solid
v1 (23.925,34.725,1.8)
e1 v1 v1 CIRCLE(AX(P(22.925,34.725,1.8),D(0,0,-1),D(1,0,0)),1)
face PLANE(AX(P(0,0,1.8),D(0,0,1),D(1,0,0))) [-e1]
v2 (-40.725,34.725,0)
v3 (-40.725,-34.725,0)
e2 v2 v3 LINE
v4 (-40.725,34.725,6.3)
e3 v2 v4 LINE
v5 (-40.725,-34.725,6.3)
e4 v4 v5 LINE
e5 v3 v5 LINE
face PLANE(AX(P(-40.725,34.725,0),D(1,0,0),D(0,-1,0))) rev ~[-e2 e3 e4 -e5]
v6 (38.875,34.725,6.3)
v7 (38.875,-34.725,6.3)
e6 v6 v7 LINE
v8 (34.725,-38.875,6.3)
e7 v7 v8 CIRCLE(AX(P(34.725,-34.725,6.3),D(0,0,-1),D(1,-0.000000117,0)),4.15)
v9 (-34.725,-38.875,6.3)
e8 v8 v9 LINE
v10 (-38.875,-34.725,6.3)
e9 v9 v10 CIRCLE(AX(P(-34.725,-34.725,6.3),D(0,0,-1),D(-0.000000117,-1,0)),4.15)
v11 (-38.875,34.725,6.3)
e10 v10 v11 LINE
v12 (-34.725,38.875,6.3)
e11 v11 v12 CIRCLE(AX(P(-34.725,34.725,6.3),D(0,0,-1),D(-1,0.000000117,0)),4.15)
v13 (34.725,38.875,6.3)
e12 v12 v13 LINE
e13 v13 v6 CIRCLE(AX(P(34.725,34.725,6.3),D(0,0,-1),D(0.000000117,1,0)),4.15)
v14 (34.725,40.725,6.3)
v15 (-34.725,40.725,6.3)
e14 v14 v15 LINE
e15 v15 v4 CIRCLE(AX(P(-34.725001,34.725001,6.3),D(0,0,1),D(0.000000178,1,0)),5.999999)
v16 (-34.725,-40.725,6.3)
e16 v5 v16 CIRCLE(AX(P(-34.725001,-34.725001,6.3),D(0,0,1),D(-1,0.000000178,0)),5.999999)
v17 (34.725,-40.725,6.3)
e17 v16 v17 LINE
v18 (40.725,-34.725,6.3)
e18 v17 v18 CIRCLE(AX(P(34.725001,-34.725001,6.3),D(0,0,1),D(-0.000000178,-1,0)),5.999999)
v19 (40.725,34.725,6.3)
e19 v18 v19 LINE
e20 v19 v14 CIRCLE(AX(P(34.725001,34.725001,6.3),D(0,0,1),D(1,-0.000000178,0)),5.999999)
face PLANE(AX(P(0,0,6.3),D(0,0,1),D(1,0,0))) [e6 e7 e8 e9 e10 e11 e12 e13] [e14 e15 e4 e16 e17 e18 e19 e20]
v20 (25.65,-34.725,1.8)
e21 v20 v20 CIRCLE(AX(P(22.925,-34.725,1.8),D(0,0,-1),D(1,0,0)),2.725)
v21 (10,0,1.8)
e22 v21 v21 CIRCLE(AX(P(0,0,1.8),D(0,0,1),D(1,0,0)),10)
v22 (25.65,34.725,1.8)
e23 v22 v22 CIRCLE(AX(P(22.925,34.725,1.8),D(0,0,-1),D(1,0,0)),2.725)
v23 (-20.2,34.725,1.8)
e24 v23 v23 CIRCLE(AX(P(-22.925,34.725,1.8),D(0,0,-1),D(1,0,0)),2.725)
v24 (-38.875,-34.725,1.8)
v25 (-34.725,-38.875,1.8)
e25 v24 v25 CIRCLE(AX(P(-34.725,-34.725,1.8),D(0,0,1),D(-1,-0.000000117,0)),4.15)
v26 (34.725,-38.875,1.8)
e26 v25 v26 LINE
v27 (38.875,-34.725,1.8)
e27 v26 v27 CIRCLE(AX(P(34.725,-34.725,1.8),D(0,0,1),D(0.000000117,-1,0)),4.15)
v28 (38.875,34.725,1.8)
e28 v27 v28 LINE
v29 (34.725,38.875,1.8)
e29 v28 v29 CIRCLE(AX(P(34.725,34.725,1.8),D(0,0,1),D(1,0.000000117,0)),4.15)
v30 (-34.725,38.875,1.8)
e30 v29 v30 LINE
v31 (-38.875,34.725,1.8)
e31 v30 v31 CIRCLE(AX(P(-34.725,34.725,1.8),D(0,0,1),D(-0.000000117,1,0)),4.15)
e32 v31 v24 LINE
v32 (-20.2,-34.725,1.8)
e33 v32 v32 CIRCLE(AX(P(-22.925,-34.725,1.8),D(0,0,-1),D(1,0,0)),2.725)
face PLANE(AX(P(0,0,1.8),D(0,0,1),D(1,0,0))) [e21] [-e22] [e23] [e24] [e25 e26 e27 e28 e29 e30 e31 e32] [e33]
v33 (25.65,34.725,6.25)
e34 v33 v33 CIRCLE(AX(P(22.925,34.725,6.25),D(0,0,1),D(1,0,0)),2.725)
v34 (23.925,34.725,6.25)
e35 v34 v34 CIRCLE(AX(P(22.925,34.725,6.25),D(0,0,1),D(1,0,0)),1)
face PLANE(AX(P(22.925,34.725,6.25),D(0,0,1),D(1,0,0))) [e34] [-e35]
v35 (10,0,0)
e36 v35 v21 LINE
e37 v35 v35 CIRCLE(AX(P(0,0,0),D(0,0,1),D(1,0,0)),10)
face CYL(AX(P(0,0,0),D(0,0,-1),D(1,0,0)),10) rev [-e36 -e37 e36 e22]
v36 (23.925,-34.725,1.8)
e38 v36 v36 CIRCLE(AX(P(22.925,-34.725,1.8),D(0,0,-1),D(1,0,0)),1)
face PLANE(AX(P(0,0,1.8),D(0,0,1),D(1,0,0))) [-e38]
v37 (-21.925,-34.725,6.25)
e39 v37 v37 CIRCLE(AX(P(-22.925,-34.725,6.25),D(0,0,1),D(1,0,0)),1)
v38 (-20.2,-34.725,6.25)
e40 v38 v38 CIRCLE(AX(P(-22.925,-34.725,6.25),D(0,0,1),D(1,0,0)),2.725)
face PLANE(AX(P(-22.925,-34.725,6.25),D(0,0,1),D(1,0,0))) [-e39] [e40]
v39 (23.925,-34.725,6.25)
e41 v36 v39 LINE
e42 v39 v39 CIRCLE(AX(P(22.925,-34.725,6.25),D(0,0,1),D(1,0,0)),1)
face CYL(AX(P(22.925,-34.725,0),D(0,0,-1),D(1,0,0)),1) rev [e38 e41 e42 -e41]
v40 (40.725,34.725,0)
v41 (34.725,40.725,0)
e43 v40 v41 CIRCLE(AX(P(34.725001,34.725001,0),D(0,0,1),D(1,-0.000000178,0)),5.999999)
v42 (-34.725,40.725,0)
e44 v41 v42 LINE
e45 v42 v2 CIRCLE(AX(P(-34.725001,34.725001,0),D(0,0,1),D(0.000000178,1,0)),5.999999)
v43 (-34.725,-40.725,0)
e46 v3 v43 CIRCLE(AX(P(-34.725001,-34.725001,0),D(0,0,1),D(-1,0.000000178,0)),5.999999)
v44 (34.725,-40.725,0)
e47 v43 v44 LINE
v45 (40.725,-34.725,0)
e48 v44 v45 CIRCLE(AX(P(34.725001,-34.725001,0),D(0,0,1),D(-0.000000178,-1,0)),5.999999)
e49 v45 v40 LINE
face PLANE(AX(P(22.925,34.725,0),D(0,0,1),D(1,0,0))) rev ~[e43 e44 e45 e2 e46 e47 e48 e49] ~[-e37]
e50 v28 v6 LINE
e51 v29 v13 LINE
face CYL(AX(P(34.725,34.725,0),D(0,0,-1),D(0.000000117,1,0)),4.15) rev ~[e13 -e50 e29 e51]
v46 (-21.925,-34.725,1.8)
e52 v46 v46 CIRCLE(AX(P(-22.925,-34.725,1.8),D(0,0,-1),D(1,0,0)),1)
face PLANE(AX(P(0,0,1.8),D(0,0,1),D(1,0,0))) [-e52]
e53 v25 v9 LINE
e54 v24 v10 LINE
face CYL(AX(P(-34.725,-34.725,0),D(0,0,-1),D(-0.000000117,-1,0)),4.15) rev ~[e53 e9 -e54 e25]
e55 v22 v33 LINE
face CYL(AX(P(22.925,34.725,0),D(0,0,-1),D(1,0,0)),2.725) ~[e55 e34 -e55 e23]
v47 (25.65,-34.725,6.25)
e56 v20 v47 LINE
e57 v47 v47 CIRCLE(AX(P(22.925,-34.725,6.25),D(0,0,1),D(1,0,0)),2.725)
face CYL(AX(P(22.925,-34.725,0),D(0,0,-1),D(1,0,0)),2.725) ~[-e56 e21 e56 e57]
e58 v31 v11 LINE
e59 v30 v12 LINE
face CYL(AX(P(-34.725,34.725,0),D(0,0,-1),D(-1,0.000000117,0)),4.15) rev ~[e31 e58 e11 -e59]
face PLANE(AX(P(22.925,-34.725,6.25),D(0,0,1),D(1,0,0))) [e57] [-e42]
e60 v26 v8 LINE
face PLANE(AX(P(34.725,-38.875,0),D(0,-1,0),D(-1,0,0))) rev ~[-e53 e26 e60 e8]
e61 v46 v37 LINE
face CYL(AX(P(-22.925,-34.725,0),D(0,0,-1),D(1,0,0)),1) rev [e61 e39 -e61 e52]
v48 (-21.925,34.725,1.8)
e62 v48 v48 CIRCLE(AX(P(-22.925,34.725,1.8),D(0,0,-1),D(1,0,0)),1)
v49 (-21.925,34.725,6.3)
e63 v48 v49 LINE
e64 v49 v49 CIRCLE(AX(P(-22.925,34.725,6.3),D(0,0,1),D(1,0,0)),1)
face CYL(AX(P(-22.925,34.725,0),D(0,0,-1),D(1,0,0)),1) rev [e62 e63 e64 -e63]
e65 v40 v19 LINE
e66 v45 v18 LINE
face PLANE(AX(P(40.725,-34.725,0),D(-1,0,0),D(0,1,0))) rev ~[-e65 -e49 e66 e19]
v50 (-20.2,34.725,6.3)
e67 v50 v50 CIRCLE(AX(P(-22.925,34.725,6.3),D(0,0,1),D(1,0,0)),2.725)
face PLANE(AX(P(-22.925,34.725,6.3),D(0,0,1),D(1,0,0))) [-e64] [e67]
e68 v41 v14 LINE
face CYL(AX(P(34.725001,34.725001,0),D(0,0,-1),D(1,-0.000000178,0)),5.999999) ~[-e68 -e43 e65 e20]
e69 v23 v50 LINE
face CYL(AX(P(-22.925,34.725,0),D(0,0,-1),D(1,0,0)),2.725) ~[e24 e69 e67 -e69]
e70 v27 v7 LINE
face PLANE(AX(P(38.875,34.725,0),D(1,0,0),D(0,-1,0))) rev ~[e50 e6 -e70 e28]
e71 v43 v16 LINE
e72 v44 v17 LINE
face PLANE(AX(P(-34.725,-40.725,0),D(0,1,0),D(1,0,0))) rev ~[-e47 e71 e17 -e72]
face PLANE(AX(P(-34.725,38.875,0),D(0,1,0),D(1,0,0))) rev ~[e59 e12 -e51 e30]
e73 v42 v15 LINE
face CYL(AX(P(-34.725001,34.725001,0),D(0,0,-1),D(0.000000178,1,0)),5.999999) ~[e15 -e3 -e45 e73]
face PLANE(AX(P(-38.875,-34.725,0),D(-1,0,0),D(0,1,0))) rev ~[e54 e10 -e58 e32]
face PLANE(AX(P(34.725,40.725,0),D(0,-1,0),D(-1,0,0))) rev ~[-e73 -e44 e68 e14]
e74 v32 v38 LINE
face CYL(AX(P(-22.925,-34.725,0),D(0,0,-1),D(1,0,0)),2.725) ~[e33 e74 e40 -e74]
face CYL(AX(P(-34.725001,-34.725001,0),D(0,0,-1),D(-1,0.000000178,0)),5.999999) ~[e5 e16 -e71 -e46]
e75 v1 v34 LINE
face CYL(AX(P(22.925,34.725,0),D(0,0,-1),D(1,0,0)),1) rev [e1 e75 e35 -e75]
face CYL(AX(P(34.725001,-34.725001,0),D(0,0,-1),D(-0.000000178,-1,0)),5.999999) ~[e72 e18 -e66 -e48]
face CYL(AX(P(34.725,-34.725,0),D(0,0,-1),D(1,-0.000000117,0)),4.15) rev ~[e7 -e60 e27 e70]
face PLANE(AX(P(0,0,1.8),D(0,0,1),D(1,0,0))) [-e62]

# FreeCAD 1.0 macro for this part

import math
import FreeCAD as App
import Part
import Sketcher

V = App.Vector

doc = App.newDocument("Part")
body = doc.addObject("PartDesign::Body", "Body")

sketch1 = body.newObject("Sketcher::SketchObject", "Sketch")
sketch1.AttachmentSupport = (doc.getObject("XY_Plane"), [""])
sketch1.MapMode = "FlatFace"
sketch1.addGeometry([
    Part.LineSegment(V(38.9, -34.7, 0), V(38.9, 34.7, 0)),
    Part.ArcOfCircle(Part.Circle(V(34.7, 34.7, 0), V(0, 0, 1), 4.2), math.radians(0), math.radians(90)),
    Part.LineSegment(V(34.7, 38.9, 0), V(-34.7, 38.9, 0)),
    Part.ArcOfCircle(Part.Circle(V(-34.7, 34.7, 0), V(0, 0, 1), 4.2), math.radians(90), math.radians(180)),
    Part.LineSegment(V(-38.9, 34.7, 0), V(-38.9, -34.7, 0)),
    Part.ArcOfCircle(Part.Circle(V(-34.7, -34.7, 0), V(0, 0, 1), 4.2), math.radians(-180), math.radians(-90)),
    Part.LineSegment(V(-34.7, -38.9, 0), V(34.7, -38.9, 0)),
    Part.ArcOfCircle(Part.Circle(V(34.7, -34.7, 0), V(0, 0, 1), 4.2), math.radians(-90), math.radians(0)),
    Part.Circle(V(0, 0, 0), V(0, 0, 1), 10),
], False)
sketch1.addConstraint([
    Sketcher.Constraint("Tangent", 0, 2, 1, 1),
    Sketcher.Constraint("Tangent", 1, 2, 2, 1),
    Sketcher.Constraint("Tangent", 2, 2, 3, 1),
    Sketcher.Constraint("Tangent", 3, 2, 4, 1),
    Sketcher.Constraint("Tangent", 4, 2, 5, 1),
    Sketcher.Constraint("Tangent", 5, 2, 6, 1),
    Sketcher.Constraint("Tangent", 6, 2, 7, 1),
    Sketcher.Constraint("Tangent", 7, 2, 0, 1),
    Sketcher.Constraint("Vertical", 0),
    Sketcher.Constraint("Horizontal", 2),
    Sketcher.Constraint("Vertical", 4),
    Sketcher.Constraint("Horizontal", 6),
    Sketcher.Constraint("Coincident", 8, 3, -1, 1),
    Sketcher.Constraint("Equal", 1, 3),
    Sketcher.Constraint("Equal", 3, 5),
    Sketcher.Constraint("Equal", 5, 7),
    Sketcher.Constraint("Symmetric", 1, 3, 5, 3, -1, 1),
    Sketcher.Constraint("Equal", 6, 0),
    Sketcher.Constraint("Diameter", 8, 20.0),
    Sketcher.Constraint("Radius", 1, 4.15),
    Sketcher.Constraint("DistanceX", 2, 2, 2, 1, 69.45),
])
pad1 = body.newObject("PartDesign::Pad", "Pad")
pad1.Profile = sketch1
pad1.Length = 1.8

sketch2 = body.newObject("Sketcher::SketchObject", "Sketch001")
sketch2.AttachmentSupport = (doc.getObject("XY_Plane"), [""])
sketch2.MapMode = "FlatFace"
sketch2.addGeometry([
    Part.LineSegment(V(-34.7, -40.7, 0), V(34.7, -40.7, 0)),
    Part.ArcOfCircle(Part.Circle(V(34.7, -34.7, 0), V(0, 0, 1), 6), math.radians(-90), math.radians(0)),
    Part.LineSegment(V(40.7, -34.7, 0), V(40.7, 34.7, 0)),
    Part.ArcOfCircle(Part.Circle(V(34.7, 34.7, 0), V(0, 0, 1), 6), math.radians(0), math.radians(90)),
    Part.LineSegment(V(34.7, 40.7, 0), V(-34.7, 40.7, 0)),
    Part.ArcOfCircle(Part.Circle(V(-34.7, 34.7, 0), V(0, 0, 1), 6), math.radians(90), math.radians(180)),
    Part.LineSegment(V(-40.7, 34.7, 0), V(-40.7, -34.7, 0)),
    Part.ArcOfCircle(Part.Circle(V(-34.7, -34.7, 0), V(0, 0, 1), 6), math.radians(180), math.radians(270)),
    Part.LineSegment(V(-34.7, 38.9, 0), V(34.7, 38.9, 0)),
    Part.ArcOfCircle(Part.Circle(V(34.7, 34.7, 0), V(0, 0, 1), 4.2), math.radians(0), math.radians(90)),
    Part.LineSegment(V(38.9, 34.7, 0), V(38.9, -34.7, 0)),
    Part.ArcOfCircle(Part.Circle(V(34.7, -34.7, 0), V(0, 0, 1), 4.2), math.radians(-90), math.radians(0)),
    Part.LineSegment(V(34.7, -38.9, 0), V(-34.7, -38.9, 0)),
    Part.ArcOfCircle(Part.Circle(V(-34.7, -34.7, 0), V(0, 0, 1), 4.2), math.radians(-180), math.radians(-90)),
    Part.LineSegment(V(-38.9, -34.7, 0), V(-38.9, 34.7, 0)),
    Part.ArcOfCircle(Part.Circle(V(-34.7, 34.7, 0), V(0, 0, 1), 4.2), math.radians(90), math.radians(180)),
], False)
sketch2.addConstraint([
    Sketcher.Constraint("Tangent", 0, 2, 1, 1),
    Sketcher.Constraint("Tangent", 1, 2, 2, 1),
    Sketcher.Constraint("Tangent", 2, 2, 3, 1),
    Sketcher.Constraint("Tangent", 3, 2, 4, 1),
    Sketcher.Constraint("Tangent", 4, 2, 5, 1),
    Sketcher.Constraint("Tangent", 5, 2, 6, 1),
    Sketcher.Constraint("Tangent", 6, 2, 7, 1),
    Sketcher.Constraint("Tangent", 7, 2, 0, 1),
    Sketcher.Constraint("Tangent", 8, 2, 9, 2),
    Sketcher.Constraint("Tangent", 9, 1, 10, 1),
    Sketcher.Constraint("Tangent", 10, 2, 11, 2),
    Sketcher.Constraint("Tangent", 11, 1, 12, 1),
    Sketcher.Constraint("Tangent", 12, 2, 13, 2),
    Sketcher.Constraint("Tangent", 13, 1, 14, 1),
    Sketcher.Constraint("Tangent", 14, 2, 15, 2),
    Sketcher.Constraint("Tangent", 15, 1, 8, 1),
    Sketcher.Constraint("Horizontal", 0),
    Sketcher.Constraint("Vertical", 2),
    Sketcher.Constraint("Horizontal", 4),
    Sketcher.Constraint("Vertical", 6),
    Sketcher.Constraint("Horizontal", 8),
    Sketcher.Constraint("Vertical", 10),
    Sketcher.Constraint("Horizontal", 12),
    Sketcher.Constraint("Vertical", 14),
    Sketcher.Constraint("Coincident", 9, 3, 3, 3),
    Sketcher.Constraint("Coincident", 11, 3, 1, 3),
    Sketcher.Constraint("Coincident", 13, 3, 7, 3),
    Sketcher.Constraint("Equal", 1, 3),
    Sketcher.Constraint("Equal", 3, 5),
    Sketcher.Constraint("Equal", 5, 7),
    Sketcher.Constraint("Equal", 13, 15),
    Sketcher.Constraint("Symmetric", 1, 3, 5, 3, -1, 1),
    Sketcher.Constraint("Equal", 12, 2),
    Sketcher.Constraint("Radius", 1, 5.999999),
    Sketcher.Constraint("Radius", 9, 4.15),
    Sketcher.Constraint("DistanceX", 0, 1, 0, 2, 69.45),
])
pad2 = body.newObject("PartDesign::Pad", "Pad001")
pad2.Profile = sketch2
pad2.Length = 6.3

sketch3 = body.newObject("Sketcher::SketchObject", "Sketch002")
sketch3.AttachmentSupport = (doc.getObject("XY_Plane"), [""])
sketch3.MapMode = "FlatFace"
sketch3.addGeometry([
    Part.Circle(V(-22.9, 34.7, 0), V(0, 0, 1), 2.7),
    Part.Circle(V(-22.9, 34.7, 0), V(0, 0, 1), 1),
], False)
sketch3.addConstraint([
    Sketcher.Constraint("Coincident", 1, 3, 0, 3),
    Sketcher.Constraint("Diameter", 1, 2.0),
    Sketcher.Constraint("Diameter", 0, 5.45),
    Sketcher.Constraint("DistanceX", 0, 3, -1, 1, 22.925),
    Sketcher.Constraint("DistanceY", -1, 1, 0, 3, 34.725),
])
pad3 = body.newObject("PartDesign::Pad", "Pad002")
pad3.Profile = sketch3
pad3.Length = 6.3

sketch4 = body.newObject("Sketcher::SketchObject", "Sketch003")
sketch4.AttachmentSupport = (doc.getObject("XY_Plane"), [""])
sketch4.MapMode = "FlatFace"
sketch4.addGeometry([
    Part.Circle(V(22.9, 34.7, 0), V(0, 0, 1), 2.7),
    Part.Circle(V(22.9, 34.7, 0), V(0, 0, 1), 1),
    Part.Circle(V(22.9, -34.7, 0), V(0, 0, 1), 2.7),
    Part.Circle(V(22.9, -34.7, 0), V(0, 0, 1), 1),
    Part.Circle(V(-22.9, -34.7, 0), V(0, 0, 1), 2.7),
    Part.Circle(V(-22.9, -34.7, 0), V(0, 0, 1), 1),
], False)
sketch4.addConstraint([
    Sketcher.Constraint("Coincident", 1, 3, 0, 3),
    Sketcher.Constraint("Coincident", 3, 3, 2, 3),
    Sketcher.Constraint("Coincident", 5, 3, 4, 3),
    Sketcher.Constraint("Equal", 0, 2),
    Sketcher.Constraint("Equal", 1, 3),
    Sketcher.Constraint("Equal", 2, 4),
    Sketcher.Constraint("Equal", 3, 5),
    Sketcher.Constraint("Symmetric", 0, 3, 4, 3, -1, 1),
    Sketcher.Constraint("Symmetric", 2, 3, 4, 3, -2),
    Sketcher.Constraint("Diameter", 1, 2.0),
    Sketcher.Constraint("Diameter", 0, 5.45),
    Sketcher.Constraint("DistanceY", 2, 3, 0, 3, 69.45),
    Sketcher.Constraint("DistanceX", 4, 3, 2, 3, 45.85),
])
pad4 = body.newObject("PartDesign::Pad", "Pad003")
pad4.Profile = sketch4
pad4.Length = 6.25

doc.recompute()
